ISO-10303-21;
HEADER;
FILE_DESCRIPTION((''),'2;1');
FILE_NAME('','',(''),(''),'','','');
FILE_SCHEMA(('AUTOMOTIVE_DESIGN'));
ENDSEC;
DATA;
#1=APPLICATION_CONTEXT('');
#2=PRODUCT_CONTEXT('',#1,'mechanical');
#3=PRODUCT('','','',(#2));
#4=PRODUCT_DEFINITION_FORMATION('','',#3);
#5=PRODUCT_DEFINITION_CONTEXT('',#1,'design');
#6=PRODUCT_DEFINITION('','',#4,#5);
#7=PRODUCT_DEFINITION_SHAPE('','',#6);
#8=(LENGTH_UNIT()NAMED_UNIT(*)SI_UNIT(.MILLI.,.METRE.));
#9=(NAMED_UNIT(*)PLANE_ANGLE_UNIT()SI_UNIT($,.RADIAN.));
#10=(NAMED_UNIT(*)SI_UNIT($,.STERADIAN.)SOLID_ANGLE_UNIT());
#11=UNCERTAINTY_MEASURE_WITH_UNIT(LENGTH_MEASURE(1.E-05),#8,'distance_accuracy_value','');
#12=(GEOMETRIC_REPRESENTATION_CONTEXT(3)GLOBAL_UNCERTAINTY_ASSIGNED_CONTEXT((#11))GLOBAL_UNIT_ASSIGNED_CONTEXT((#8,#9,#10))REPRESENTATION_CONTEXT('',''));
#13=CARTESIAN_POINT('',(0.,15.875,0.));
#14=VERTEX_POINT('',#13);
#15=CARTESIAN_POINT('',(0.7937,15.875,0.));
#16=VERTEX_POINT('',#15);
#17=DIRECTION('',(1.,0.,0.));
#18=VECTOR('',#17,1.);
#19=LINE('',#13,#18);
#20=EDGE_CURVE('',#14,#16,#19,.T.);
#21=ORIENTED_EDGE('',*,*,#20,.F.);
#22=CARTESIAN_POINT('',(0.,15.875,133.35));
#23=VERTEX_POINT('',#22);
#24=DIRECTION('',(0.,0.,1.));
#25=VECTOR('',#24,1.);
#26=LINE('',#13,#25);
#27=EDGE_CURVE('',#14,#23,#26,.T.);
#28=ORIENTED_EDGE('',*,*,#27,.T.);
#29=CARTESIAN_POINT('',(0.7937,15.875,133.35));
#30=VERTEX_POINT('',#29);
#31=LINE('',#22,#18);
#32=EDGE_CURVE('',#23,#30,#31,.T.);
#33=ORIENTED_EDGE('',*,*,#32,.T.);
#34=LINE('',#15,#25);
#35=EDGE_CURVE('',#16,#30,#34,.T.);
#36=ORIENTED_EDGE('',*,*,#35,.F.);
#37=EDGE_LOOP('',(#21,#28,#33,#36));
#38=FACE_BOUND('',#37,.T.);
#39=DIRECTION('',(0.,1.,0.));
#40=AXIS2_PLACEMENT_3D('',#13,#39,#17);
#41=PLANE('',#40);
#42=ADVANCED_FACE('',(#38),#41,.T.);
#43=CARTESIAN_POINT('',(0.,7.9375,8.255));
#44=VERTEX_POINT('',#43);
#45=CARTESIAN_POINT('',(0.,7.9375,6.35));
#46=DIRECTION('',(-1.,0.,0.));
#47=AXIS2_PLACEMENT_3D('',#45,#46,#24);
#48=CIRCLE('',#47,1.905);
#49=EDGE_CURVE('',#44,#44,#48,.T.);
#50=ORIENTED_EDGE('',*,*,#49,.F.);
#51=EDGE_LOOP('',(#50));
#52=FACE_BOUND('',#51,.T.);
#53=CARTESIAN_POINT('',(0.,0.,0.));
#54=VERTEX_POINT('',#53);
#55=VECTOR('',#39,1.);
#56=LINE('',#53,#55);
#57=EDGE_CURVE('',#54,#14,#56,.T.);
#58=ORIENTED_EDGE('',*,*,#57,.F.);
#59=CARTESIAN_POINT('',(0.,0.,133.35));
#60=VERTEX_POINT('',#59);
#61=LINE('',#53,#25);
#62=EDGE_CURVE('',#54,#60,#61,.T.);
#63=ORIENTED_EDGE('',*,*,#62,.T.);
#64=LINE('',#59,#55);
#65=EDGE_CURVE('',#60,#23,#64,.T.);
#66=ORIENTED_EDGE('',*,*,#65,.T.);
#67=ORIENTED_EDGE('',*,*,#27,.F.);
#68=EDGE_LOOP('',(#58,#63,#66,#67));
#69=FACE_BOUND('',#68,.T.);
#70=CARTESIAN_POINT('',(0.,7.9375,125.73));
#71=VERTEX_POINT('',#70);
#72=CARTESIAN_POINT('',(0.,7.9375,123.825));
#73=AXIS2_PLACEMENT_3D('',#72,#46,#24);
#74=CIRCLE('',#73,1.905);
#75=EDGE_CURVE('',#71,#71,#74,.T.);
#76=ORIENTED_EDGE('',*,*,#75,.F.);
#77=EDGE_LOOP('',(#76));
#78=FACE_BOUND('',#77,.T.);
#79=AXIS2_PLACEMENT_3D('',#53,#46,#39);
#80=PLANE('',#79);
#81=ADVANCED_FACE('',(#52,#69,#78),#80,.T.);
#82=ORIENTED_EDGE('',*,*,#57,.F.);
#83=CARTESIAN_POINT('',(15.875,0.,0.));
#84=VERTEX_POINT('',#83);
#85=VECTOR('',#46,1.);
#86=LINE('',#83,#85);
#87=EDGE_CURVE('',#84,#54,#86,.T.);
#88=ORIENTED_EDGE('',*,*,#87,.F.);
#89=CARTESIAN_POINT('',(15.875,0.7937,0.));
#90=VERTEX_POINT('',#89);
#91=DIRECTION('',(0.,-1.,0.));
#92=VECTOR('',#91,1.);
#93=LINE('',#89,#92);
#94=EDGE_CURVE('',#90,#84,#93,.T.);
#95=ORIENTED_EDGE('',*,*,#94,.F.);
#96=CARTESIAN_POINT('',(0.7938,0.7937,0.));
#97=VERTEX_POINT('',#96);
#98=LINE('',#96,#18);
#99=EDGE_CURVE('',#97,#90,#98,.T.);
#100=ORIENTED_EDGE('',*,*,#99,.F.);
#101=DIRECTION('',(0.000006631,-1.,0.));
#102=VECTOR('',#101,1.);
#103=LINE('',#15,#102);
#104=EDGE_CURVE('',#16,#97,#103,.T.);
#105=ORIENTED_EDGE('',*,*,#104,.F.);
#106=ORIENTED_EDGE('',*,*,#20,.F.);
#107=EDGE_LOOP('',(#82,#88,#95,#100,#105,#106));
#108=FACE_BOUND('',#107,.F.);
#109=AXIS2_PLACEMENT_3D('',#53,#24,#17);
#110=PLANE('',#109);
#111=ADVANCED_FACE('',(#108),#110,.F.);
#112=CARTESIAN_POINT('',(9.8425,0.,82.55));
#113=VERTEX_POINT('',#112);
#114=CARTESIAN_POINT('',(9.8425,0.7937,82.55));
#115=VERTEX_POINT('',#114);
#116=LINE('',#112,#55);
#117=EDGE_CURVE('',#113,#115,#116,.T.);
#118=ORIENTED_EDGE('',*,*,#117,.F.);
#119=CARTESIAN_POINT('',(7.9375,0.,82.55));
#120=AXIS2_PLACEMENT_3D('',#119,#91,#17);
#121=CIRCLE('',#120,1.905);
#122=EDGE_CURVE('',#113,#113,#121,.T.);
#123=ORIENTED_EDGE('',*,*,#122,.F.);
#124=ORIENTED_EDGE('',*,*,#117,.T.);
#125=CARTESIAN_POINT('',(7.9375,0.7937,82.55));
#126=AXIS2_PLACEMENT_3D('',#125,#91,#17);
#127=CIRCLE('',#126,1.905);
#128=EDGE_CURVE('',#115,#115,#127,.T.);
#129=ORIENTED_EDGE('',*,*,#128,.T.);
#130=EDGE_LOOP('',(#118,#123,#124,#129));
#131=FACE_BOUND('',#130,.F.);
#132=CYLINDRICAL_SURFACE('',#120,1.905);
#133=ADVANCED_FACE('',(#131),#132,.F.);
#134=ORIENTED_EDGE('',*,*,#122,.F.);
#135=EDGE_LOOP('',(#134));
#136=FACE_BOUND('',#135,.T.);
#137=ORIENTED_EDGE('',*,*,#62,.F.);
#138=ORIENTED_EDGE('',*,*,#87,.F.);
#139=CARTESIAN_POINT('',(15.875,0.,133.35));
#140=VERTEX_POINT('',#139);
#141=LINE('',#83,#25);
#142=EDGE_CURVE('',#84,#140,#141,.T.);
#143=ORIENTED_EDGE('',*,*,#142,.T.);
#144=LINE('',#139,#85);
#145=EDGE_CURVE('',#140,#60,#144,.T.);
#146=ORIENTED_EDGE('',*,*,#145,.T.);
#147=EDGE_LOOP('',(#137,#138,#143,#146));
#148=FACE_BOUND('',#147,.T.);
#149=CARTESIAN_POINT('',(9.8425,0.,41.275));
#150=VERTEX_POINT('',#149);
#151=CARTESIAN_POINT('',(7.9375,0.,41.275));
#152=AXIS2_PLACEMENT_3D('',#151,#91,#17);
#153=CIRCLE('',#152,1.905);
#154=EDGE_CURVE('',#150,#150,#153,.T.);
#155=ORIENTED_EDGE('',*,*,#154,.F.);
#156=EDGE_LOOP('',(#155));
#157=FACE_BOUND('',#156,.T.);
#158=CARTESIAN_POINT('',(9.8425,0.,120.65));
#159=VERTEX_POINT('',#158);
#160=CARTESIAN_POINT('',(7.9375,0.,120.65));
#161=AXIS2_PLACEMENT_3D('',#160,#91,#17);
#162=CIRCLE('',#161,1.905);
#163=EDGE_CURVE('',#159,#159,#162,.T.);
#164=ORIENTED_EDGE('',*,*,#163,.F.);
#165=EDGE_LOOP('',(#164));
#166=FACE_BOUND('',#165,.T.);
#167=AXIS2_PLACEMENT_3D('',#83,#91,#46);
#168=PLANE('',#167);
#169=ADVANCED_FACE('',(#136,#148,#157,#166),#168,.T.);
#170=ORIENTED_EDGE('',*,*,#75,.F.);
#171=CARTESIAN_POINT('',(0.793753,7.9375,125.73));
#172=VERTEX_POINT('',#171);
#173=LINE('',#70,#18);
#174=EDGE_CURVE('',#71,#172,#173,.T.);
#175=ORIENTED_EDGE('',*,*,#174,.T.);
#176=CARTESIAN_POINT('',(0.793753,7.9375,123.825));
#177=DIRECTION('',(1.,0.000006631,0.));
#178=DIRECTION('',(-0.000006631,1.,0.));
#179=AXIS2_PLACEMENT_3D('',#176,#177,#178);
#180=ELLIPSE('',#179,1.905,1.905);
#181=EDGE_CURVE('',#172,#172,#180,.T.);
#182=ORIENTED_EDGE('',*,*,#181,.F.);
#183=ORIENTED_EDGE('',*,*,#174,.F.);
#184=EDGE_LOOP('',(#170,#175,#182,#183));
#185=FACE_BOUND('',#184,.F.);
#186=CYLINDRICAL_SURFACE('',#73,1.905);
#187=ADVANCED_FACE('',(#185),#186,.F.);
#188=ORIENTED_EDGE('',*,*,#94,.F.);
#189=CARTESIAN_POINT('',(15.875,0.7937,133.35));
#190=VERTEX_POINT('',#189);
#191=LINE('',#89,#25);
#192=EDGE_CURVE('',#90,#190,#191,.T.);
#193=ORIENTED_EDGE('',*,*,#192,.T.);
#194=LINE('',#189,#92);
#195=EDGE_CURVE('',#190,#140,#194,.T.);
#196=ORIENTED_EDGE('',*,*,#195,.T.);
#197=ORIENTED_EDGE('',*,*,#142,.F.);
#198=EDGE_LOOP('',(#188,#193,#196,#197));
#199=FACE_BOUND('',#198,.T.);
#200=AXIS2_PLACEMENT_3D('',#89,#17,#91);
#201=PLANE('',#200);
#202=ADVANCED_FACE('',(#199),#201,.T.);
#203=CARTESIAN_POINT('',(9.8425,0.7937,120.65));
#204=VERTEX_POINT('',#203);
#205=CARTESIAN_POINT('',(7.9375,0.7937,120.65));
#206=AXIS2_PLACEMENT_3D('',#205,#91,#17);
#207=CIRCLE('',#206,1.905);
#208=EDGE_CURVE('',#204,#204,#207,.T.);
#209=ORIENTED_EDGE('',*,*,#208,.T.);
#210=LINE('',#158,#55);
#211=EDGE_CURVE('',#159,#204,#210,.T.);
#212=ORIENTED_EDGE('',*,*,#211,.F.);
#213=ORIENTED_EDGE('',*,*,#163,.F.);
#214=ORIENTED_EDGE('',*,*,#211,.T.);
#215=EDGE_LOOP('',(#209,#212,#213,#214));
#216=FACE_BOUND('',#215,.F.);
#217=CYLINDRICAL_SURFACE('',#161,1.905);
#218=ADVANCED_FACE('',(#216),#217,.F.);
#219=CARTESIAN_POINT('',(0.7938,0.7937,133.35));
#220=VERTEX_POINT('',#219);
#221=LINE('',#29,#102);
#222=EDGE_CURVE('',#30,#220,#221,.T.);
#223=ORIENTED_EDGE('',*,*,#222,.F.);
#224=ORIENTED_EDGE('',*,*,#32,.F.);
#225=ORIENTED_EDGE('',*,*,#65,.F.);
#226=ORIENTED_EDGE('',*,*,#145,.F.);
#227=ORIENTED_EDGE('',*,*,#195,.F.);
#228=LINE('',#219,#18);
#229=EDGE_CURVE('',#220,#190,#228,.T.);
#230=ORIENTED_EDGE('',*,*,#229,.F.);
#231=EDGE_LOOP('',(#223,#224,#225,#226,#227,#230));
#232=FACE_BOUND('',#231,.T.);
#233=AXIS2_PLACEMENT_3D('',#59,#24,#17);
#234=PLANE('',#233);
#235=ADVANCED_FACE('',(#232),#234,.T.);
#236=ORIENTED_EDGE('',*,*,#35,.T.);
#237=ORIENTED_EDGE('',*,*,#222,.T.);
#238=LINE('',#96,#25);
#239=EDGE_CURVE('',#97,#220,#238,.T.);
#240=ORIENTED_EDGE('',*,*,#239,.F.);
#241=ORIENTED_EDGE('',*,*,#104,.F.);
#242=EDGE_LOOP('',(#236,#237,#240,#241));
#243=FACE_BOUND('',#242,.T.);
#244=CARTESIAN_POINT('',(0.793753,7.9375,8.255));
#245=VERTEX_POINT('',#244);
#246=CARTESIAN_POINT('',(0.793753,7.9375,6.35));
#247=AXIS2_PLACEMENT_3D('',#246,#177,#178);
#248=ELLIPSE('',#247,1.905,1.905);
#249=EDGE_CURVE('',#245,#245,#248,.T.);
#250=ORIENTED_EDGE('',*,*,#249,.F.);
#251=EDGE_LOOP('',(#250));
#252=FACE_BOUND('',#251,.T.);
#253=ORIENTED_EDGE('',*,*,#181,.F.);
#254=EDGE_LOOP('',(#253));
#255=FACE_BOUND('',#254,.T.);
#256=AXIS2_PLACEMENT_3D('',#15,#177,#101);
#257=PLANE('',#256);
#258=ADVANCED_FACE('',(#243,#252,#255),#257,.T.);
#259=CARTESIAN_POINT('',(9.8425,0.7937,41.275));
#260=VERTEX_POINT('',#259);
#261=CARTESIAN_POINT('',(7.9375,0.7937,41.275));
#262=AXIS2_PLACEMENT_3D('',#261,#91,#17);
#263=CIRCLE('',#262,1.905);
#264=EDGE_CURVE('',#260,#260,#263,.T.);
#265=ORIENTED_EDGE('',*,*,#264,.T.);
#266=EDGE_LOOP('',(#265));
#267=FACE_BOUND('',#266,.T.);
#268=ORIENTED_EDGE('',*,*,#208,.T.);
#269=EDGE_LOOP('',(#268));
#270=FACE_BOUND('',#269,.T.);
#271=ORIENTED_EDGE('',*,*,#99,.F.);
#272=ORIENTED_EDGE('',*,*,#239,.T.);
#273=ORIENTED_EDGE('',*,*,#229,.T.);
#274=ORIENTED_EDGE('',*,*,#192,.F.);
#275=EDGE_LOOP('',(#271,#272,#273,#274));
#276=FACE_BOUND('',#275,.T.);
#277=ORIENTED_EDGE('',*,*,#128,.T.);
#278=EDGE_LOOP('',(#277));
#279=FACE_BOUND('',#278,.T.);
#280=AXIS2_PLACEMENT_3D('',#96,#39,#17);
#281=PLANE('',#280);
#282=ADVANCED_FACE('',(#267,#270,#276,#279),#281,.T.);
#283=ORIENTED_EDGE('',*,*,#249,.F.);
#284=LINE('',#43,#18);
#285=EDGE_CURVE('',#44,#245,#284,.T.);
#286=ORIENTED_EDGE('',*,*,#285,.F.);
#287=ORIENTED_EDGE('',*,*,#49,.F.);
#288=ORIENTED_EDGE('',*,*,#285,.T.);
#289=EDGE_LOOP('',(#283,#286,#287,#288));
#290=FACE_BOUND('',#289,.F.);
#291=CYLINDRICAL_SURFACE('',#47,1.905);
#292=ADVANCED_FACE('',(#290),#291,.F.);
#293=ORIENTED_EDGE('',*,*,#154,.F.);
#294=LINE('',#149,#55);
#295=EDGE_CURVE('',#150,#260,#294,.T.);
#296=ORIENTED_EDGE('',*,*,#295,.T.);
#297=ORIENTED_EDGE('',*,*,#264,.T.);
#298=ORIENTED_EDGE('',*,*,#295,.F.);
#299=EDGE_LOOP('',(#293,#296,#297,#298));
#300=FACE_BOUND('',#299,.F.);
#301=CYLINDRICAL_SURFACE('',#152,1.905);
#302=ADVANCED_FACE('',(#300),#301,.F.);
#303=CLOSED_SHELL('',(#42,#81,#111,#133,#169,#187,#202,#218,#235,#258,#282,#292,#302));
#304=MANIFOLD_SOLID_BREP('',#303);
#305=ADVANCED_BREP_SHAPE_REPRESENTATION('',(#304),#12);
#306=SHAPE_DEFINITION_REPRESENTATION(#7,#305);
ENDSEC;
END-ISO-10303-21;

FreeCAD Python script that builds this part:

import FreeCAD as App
import Part
import Sketcher
from FreeCAD import Vector
Q = App.Units.Quantity

doc = App.newDocument("Part")
params = doc.addObject("Spreadsheet::Sheet", "Params")
for row, (alias, value) in enumerate([
    ("sketch1_width", "0.625 in"),
    ("sketch1_width2", "0.031248 in"),
    ("pad1_length", "5.25 in"),
    ("sketch2_diameter", "0.15 in"),
    ("sketch3_diameter", "0.15 in"),
], start=1):
    params.set(f"A{row}", alias)
    params.set(f"B{row}", "=" + value)
    params.setAlias(f"B{row}", alias)

body = doc.addObject("PartDesign::Body", "Body")

sketch1 = doc.addObject("Sketcher::SketchObject", "Sketch")
body.addObject(sketch1)
sketch1.AttachmentSupport = (doc.XY_Plane, [""])
sketch1.MapMode = "FlatFace"
sketch1.addGeometry([
    Part.LineSegment(Vector(0, 15.875, 0), Vector(0, 0, 0)),
    Part.LineSegment(Vector(0, 0, 0), Vector(15.875, 0, 0)),
    Part.LineSegment(Vector(15.875, 0, 0), Vector(15.875, 0.7937, 0)),
    Part.LineSegment(Vector(15.875, 0.7937, 0), Vector(0.7938, 0.7937, 0)),
    Part.LineSegment(Vector(0.7938, 0.7937, 0), Vector(0.7937, 15.875, 0)),
    Part.LineSegment(Vector(0.7937, 15.875, 0), Vector(0, 15.875, 0)),
], False)
sketch1.addConstraint([
    Sketcher.Constraint("Coincident", 0, 2, 1, 1),
    Sketcher.Constraint("Coincident", 1, 2, 2, 1),
    Sketcher.Constraint("Coincident", 2, 2, 3, 1),
    Sketcher.Constraint("Coincident", 3, 2, 4, 1),
    Sketcher.Constraint("Coincident", 4, 2, 5, 1),
    Sketcher.Constraint("Coincident", 5, 2, 0, 1),
    Sketcher.Constraint("Vertical", 0),
    Sketcher.Constraint("Horizontal", 1),
    Sketcher.Constraint("Vertical", 2),
    Sketcher.Constraint("Horizontal", 3),
    Sketcher.Constraint("Vertical", 4),
    Sketcher.Constraint("Horizontal", 5),
    Sketcher.Constraint("Coincident", 0, 2, -1, 1),
    Sketcher.Constraint("Equal", 1, 0),
    Sketcher.Constraint("Equal", 5, 2),
    Sketcher.Constraint("DistanceX", 1, 1, 1, 2, Q("0.625 in")),
    Sketcher.Constraint("DistanceX", 5, 2, 5, 1, Q("0.031248 in")),
])
sketch1.setExpression("Constraints[15]", "Params.sketch1_width")
sketch1.setExpression("Constraints[16]", "Params.sketch1_width2")
pad1 = doc.addObject("PartDesign::Pad", "Pad")
body.addObject(pad1)
pad1.Profile = sketch1
pad1.setExpression("Length", "Params.pad1_length")

sketch2 = doc.addObject("Sketcher::SketchObject", "Sketch001")
body.addObject(sketch2)
sketch2.AttachmentSupport = (doc.XZ_Plane, [""])
sketch2.MapMode = "FlatFace"
sketch2.addGeometry([
    Part.Circle(Vector(7.9375, 120.65, 0), Vector(0, 0, 1), 1.905),
    Part.Circle(Vector(7.9375, 41.275, 0), Vector(0, 0, 1), 1.905),
    Part.Circle(Vector(7.9375, 82.55, 0), Vector(0, 0, 1), 1.905),
], False)
sketch2.addConstraint([
    Sketcher.Constraint("Equal", 0, 1),
    Sketcher.Constraint("Equal", 1, 2),
    Sketcher.Constraint("Vertical", 0, 3, 1, 3),
    Sketcher.Constraint("Vertical", 1, 3, 2, 3),
    Sketcher.Constraint("Diameter", 0, Q("0.15 in")),
    Sketcher.Constraint("DistanceY", 2, 3, 0, 3, Q("1.5 in")),
    Sketcher.Constraint("DistanceY", -1, 1, 1, 3, Q("1.625 in")),
    Sketcher.Constraint("DistanceY", 1, 3, 2, 3, Q("1.625 in")),
    Sketcher.Constraint("DistanceX", -1, 1, 0, 3, Q("0.3125 in")),
])
sketch2.setExpression("Constraints[4]", "Params.sketch2_diameter")
pocket1 = doc.addObject("PartDesign::Pocket", "Pocket")
body.addObject(pocket1)
pocket1.Profile = sketch2
pocket1.Type = "ThroughAll"

sketch3 = doc.addObject("Sketcher::SketchObject", "Sketch002")
body.addObject(sketch3)
sketch3.AttachmentSupport = (doc.YZ_Plane, [""])
sketch3.MapMode = "FlatFace"
sketch3.addGeometry([
    Part.Circle(Vector(7.9375, 6.35, 0), Vector(0, 0, 1), 1.905),
    Part.Circle(Vector(7.9375, 123.825, 0), Vector(0, 0, 1), 1.905),
], False)
sketch3.addConstraint([
    Sketcher.Constraint("Equal", 0, 1),
    Sketcher.Constraint("Vertical", 0, 3, 1, 3),
    Sketcher.Constraint("Diameter", 0, Q("0.15 in")),
    Sketcher.Constraint("DistanceY", -1, 1, 0, 3, Q("0.25 in")),
    Sketcher.Constraint("DistanceX", -1, 1, 0, 3, Q("0.3125 in")),
    Sketcher.Constraint("DistanceY", -1, 1, 1, 3, Q("4.875 in")),
])
sketch3.setExpression("Constraints[2]", "Params.sketch3_diameter")
pocket2 = doc.addObject("PartDesign::Pocket", "Pocket001")
body.addObject(pocket2)
pocket2.Profile = sketch3
pocket2.Type = "ThroughAll"
pocket2.Reversed = True

doc.recompute()
